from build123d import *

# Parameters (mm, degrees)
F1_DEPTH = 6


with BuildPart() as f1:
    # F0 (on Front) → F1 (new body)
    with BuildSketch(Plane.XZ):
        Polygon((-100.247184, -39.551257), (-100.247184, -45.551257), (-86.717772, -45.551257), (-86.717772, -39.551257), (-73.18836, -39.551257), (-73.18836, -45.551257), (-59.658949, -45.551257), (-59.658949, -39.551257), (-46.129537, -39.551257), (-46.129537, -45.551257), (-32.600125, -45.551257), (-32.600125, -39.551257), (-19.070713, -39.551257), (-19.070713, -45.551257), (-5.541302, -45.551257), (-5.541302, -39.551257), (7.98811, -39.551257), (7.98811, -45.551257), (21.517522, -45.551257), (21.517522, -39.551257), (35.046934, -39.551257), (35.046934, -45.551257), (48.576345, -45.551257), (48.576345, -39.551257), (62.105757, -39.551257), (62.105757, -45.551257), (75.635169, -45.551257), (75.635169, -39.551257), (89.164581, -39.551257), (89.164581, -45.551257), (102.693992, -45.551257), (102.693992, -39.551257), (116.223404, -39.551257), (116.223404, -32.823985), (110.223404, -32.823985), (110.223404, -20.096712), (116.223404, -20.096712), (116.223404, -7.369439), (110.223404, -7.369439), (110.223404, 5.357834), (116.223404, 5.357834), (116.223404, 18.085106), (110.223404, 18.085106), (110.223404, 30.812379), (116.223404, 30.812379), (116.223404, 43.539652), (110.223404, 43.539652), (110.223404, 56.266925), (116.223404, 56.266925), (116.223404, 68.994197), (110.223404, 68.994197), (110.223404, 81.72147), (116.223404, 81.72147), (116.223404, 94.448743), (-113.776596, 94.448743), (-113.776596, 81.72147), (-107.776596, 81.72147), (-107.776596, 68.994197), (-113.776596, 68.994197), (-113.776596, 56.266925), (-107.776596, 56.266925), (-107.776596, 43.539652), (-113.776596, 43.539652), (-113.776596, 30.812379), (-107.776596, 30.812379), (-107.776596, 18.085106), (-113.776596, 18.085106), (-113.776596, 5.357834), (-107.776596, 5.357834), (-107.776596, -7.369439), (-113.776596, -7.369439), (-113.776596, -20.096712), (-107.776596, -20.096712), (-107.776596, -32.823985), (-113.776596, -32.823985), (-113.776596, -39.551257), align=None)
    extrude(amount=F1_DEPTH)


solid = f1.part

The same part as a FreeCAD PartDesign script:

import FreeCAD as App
import Part
import Sketcher
from FreeCAD import Vector
Q = App.Units.Quantity

doc = App.newDocument("Part")
body = doc.addObject("PartDesign::Body", "Body")

sketch1 = body.newObject("Sketcher::SketchObject", "Sketch")
sketch1.AttachmentSupport = (doc.getObject("XZ_Plane"), [""])
sketch1.MapMode = "FlatFace"
sketch1.addGeometry(Part.LineSegment(Vector(-100, -40, 0), Vector(-100, -46, 0)), False)
sketch1.addGeometry(Part.LineSegment(Vector(-100, -46, 0), Vector(-87, -46, 0)), False)
sketch1.addGeometry(Part.LineSegment(Vector(-87, -46, 0), Vector(-87, -40, 0)), False)
sketch1.addGeometry(Part.LineSegment(Vector(-87, -40, 0), Vector(-73, -40, 0)), False)
sketch1.addGeometry(Part.LineSegment(Vector(-73, -40, 0), Vector(-73, -46, 0)), False)
sketch1.addGeometry(Part.LineSegment(Vector(-73, -46, 0), Vector(-60, -46, 0)), False)
sketch1.addGeometry(Part.LineSegment(Vector(-60, -46, 0), Vector(-60, -40, 0)), False)
sketch1.addGeometry(Part.LineSegment(Vector(-60, -40, 0), Vector(-46, -40, 0)), False)
sketch1.addGeometry(Part.LineSegment(Vector(-46, -40, 0), Vector(-46, -46, 0)), False)
sketch1.addGeometry(Part.LineSegment(Vector(-46, -46, 0), Vector(-33, -46, 0)), False)
sketch1.addGeometry(Part.LineSegment(Vector(-33, -46, 0), Vector(-33, -40, 0)), False)
sketch1.addGeometry(Part.LineSegment(Vector(-33, -40, 0), Vector(-19, -40, 0)), False)
sketch1.addGeometry(Part.LineSegment(Vector(-19, -40, 0), Vector(-19, -46, 0)), False)
sketch1.addGeometry(Part.LineSegment(Vector(-19, -46, 0), Vector(-6, -46, 0)), False)
sketch1.addGeometry(Part.LineSegment(Vector(-6, -46, 0), Vector(-6, -40, 0)), False)
sketch1.addGeometry(Part.LineSegment(Vector(-6, -40, 0), Vector(8, -40, 0)), False)
sketch1.addGeometry(Part.LineSegment(Vector(8, -40, 0), Vector(8, -46, 0)), False)
sketch1.addGeometry(Part.LineSegment(Vector(8, -46, 0), Vector(22, -46, 0)), False)
sketch1.addGeometry(Part.LineSegment(Vector(22, -46, 0), Vector(22, -40, 0)), False)
sketch1.addGeometry(Part.LineSegment(Vector(22, -40, 0), Vector(35, -40, 0)), False)
sketch1.addGeometry(Part.LineSegment(Vector(35, -40, 0), Vector(35, -46, 0)), False)
sketch1.addGeometry(Part.LineSegment(Vector(35, -46, 0), Vector(49, -46, 0)), False)
sketch1.addGeometry(Part.LineSegment(Vector(49, -46, 0), Vector(49, -40, 0)), False)
sketch1.addGeometry(Part.LineSegment(Vector(49, -40, 0), Vector(62, -40, 0)), False)
sketch1.addGeometry(Part.LineSegment(Vector(62, -40, 0), Vector(62, -46, 0)), False)
sketch1.addGeometry(Part.LineSegment(Vector(62, -46, 0), Vector(76, -46, 0)), False)
sketch1.addGeometry(Part.LineSegment(Vector(76, -46, 0), Vector(76, -40, 0)), False)
sketch1.addGeometry(Part.LineSegment(Vector(76, -40, 0), Vector(89, -40, 0)), False)
sketch1.addGeometry(Part.LineSegment(Vector(89, -40, 0), Vector(89, -46, 0)), False)
sketch1.addGeometry(Part.LineSegment(Vector(89, -46, 0), Vector(103, -46, 0)), False)
sketch1.addGeometry(Part.LineSegment(Vector(103, -46, 0), Vector(103, -40, 0)), False)
sketch1.addGeometry(Part.LineSegment(Vector(103, -40, 0), Vector(116, -40, 0)), False)
sketch1.addGeometry(Part.LineSegment(Vector(116, -40, 0), Vector(116, -33, 0)), False)
sketch1.addGeometry(Part.LineSegment(Vector(116, -33, 0), Vector(110, -33, 0)), False)
sketch1.addGeometry(Part.LineSegment(Vector(110, -33, 0), Vector(110, -20, 0)), False)
sketch1.addGeometry(Part.LineSegment(Vector(110, -20, 0), Vector(116, -20, 0)), False)
sketch1.addGeometry(Part.LineSegment(Vector(116, -20, 0), Vector(116, -7, 0)), False)
sketch1.addGeometry(Part.LineSegment(Vector(116, -7, 0), Vector(110, -7, 0)), False)
sketch1.addGeometry(Part.LineSegment(Vector(110, -7, 0), Vector(110, 5, 0)), False)
sketch1.addGeometry(Part.LineSegment(Vector(110, 5, 0), Vector(116, 5, 0)), False)
sketch1.addGeometry(Part.LineSegment(Vector(116, 5, 0), Vector(116, 18, 0)), False)
sketch1.addGeometry(Part.LineSegment(Vector(116, 18, 0), Vector(110, 18, 0)), False)
sketch1.addGeometry(Part.LineSegment(Vector(110, 18, 0), Vector(110, 31, 0)), False)
sketch1.addGeometry(Part.LineSegment(Vector(110, 31, 0), Vector(116, 31, 0)), False)
sketch1.addGeometry(Part.LineSegment(Vector(116, 31, 0), Vector(116, 44, 0)), False)
sketch1.addGeometry(Part.LineSegment(Vector(116, 44, 0), Vector(110, 44, 0)), False)
sketch1.addGeometry(Part.LineSegment(Vector(110, 44, 0), Vector(110, 56, 0)), False)
sketch1.addGeometry(Part.LineSegment(Vector(110, 56, 0), Vector(116, 56, 0)), False)
sketch1.addGeometry(Part.LineSegment(Vector(116, 56, 0), Vector(116, 69, 0)), False)
sketch1.addGeometry(Part.LineSegment(Vector(116, 69, 0), Vector(110, 69, 0)), False)
sketch1.addGeometry(Part.LineSegment(Vector(110, 69, 0), Vector(110, 82, 0)), False)
sketch1.addGeometry(Part.LineSegment(Vector(110, 82, 0), Vector(116, 82, 0)), False)
sketch1.addGeometry(Part.LineSegment(Vector(116, 82, 0), Vector(116, 94, 0)), False)
sketch1.addGeometry(Part.LineSegment(Vector(116, 94, 0), Vector(-114, 94, 0)), False)
sketch1.addGeometry(Part.LineSegment(Vector(-114, 94, 0), Vector(-114, 82, 0)), False)
sketch1.addGeometry(Part.LineSegment(Vector(-114, 82, 0), Vector(-108, 82, 0)), False)
sketch1.addGeometry(Part.LineSegment(Vector(-108, 82, 0), Vector(-108, 69, 0)), False)
sketch1.addGeometry(Part.LineSegment(Vector(-108, 69, 0), Vector(-114, 69, 0)), False)
sketch1.addGeometry(Part.LineSegment(Vector(-114, 69, 0), Vector(-114, 56, 0)), False)
sketch1.addGeometry(Part.LineSegment(Vector(-114, 56, 0), Vector(-108, 56, 0)), False)
sketch1.addGeometry(Part.LineSegment(Vector(-108, 56, 0), Vector(-108, 44, 0)), False)
sketch1.addGeometry(Part.LineSegment(Vector(-108, 44, 0), Vector(-114, 44, 0)), False)
sketch1.addGeometry(Part.LineSegment(Vector(-114, 44, 0), Vector(-114, 31, 0)), False)
sketch1.addGeometry(Part.LineSegment(Vector(-114, 31, 0), Vector(-108, 31, 0)), False)
sketch1.addGeometry(Part.LineSegment(Vector(-108, 31, 0), Vector(-108, 18, 0)), False)
sketch1.addGeometry(Part.LineSegment(Vector(-108, 18, 0), Vector(-114, 18, 0)), False)
sketch1.addGeometry(Part.LineSegment(Vector(-114, 18, 0), Vector(-114, 5, 0)), False)
sketch1.addGeometry(Part.LineSegment(Vector(-114, 5, 0), Vector(-108, 5, 0)), False)
sketch1.addGeometry(Part.LineSegment(Vector(-108, 5, 0), Vector(-108, -7, 0)), False)
sketch1.addGeometry(Part.LineSegment(Vector(-108, -7, 0), Vector(-114, -7, 0)), False)
sketch1.addGeometry(Part.LineSegment(Vector(-114, -7, 0), Vector(-114, -20, 0)), False)
sketch1.addGeometry(Part.LineSegment(Vector(-114, -20, 0), Vector(-108, -20, 0)), False)
sketch1.addGeometry(Part.LineSegment(Vector(-108, -20, 0), Vector(-108, -33, 0)), False)
sketch1.addGeometry(Part.LineSegment(Vector(-108, -33, 0), Vector(-114, -33, 0)), False)
sketch1.addGeometry(Part.LineSegment(Vector(-114, -33, 0), Vector(-114, -40, 0)), False)
sketch1.addGeometry(Part.LineSegment(Vector(-114, -40, 0), Vector(-100, -40, 0)), False)
sketch1.addConstraint(Sketcher.Constraint("Coincident", 0, 2, 1, 1))
sketch1.addConstraint(Sketcher.Constraint("Coincident", 1, 2, 2, 1))
sketch1.addConstraint(Sketcher.Constraint("Coincident", 2, 2, 3, 1))
sketch1.addConstraint(Sketcher.Constraint("Coincident", 3, 2, 4, 1))
sketch1.addConstraint(Sketcher.Constraint("Coincident", 4, 2, 5, 1))
sketch1.addConstraint(Sketcher.Constraint("Coincident", 5, 2, 6, 1))
sketch1.addConstraint(Sketcher.Constraint("Coincident", 6, 2, 7, 1))
sketch1.addConstraint(Sketcher.Constraint("Coincident", 7, 2, 8, 1))
sketch1.addConstraint(Sketcher.Constraint("Coincident", 8, 2, 9, 1))
sketch1.addConstraint(Sketcher.Constraint("Coincident", 9, 2, 10, 1))
sketch1.addConstraint(Sketcher.Constraint("Coincident", 10, 2, 11, 1))
sketch1.addConstraint(Sketcher.Constraint("Coincident", 11, 2, 12, 1))
sketch1.addConstraint(Sketcher.Constraint("Coincident", 12, 2, 13, 1))
sketch1.addConstraint(Sketcher.Constraint("Coincident", 13, 2, 14, 1))
sketch1.addConstraint(Sketcher.Constraint("Coincident", 14, 2, 15, 1))
sketch1.addConstraint(Sketcher.Constraint("Coincident", 15, 2, 16, 1))
sketch1.addConstraint(Sketcher.Constraint("Coincident", 16, 2, 17, 1))
sketch1.addConstraint(Sketcher.Constraint("Coincident", 17, 2, 18, 1))
sketch1.addConstraint(Sketcher.Constraint("Coincident", 18, 2, 19, 1))
sketch1.addConstraint(Sketcher.Constraint("Coincident", 19, 2, 20, 1))
sketch1.addConstraint(Sketcher.Constraint("Coincident", 20, 2, 21, 1))
sketch1.addConstraint(Sketcher.Constraint("Coincident", 21, 2, 22, 1))
sketch1.addConstraint(Sketcher.Constraint("Coincident", 22, 2, 23, 1))
sketch1.addConstraint(Sketcher.Constraint("Coincident", 23, 2, 24, 1))
sketch1.addConstraint(Sketcher.Constraint("Coincident", 24, 2, 25, 1))
sketch1.addConstraint(Sketcher.Constraint("Coincident", 25, 2, 26, 1))
sketch1.addConstraint(Sketcher.Constraint("Coincident", 26, 2, 27, 1))
sketch1.addConstraint(Sketcher.Constraint("Coincident", 27, 2, 28, 1))
sketch1.addConstraint(Sketcher.Constraint("Coincident", 28, 2, 29, 1))
sketch1.addConstraint(Sketcher.Constraint("Coincident", 29, 2, 30, 1))
sketch1.addConstraint(Sketcher.Constraint("Coincident", 30, 2, 31, 1))
sketch1.addConstraint(Sketcher.Constraint("Coincident", 31, 2, 32, 1))
sketch1.addConstraint(Sketcher.Constraint("Coincident", 32, 2, 33, 1))
sketch1.addConstraint(Sketcher.Constraint("Coincident", 33, 2, 34, 1))
sketch1.addConstraint(Sketcher.Constraint("Coincident", 34, 2, 35, 1))
sketch1.addConstraint(Sketcher.Constraint("Coincident", 35, 2, 36, 1))
sketch1.addConstraint(Sketcher.Constraint("Coincident", 36, 2, 37, 1))
sketch1.addConstraint(Sketcher.Constraint("Coincident", 37, 2, 38, 1))
sketch1.addConstraint(Sketcher.Constraint("Coincident", 38, 2, 39, 1))
sketch1.addConstraint(Sketcher.Constraint("Coincident", 39, 2, 40, 1))
sketch1.addConstraint(Sketcher.Constraint("Coincident", 40, 2, 41, 1))
sketch1.addConstraint(Sketcher.Constraint("Coincident", 41, 2, 42, 1))
sketch1.addConstraint(Sketcher.Constraint("Coincident", 42, 2, 43, 1))
sketch1.addConstraint(Sketcher.Constraint("Coincident", 43, 2, 44, 1))
sketch1.addConstraint(Sketcher.Constraint("Coincident", 44, 2, 45, 1))
sketch1.addConstraint(Sketcher.Constraint("Coincident", 45, 2, 46, 1))
sketch1.addConstraint(Sketcher.Constraint("Coincident", 46, 2, 47, 1))
sketch1.addConstraint(Sketcher.Constraint("Coincident", 47, 2, 48, 1))
sketch1.addConstraint(Sketcher.Constraint("Coincident", 48, 2, 49, 1))
sketch1.addConstraint(Sketcher.Constraint("Coincident", 49, 2, 50, 1))
sketch1.addConstraint(Sketcher.Constraint("Coincident", 50, 2, 51, 1))
sketch1.addConstraint(Sketcher.Constraint("Coincident", 51, 2, 52, 1))
sketch1.addConstraint(Sketcher.Constraint("Coincident", 52, 2, 53, 1))
sketch1.addConstraint(Sketcher.Constraint("Coincident", 53, 2, 54, 1))
sketch1.addConstraint(Sketcher.Constraint("Coincident", 54, 2, 55, 1))
sketch1.addConstraint(Sketcher.Constraint("Coincident", 55, 2, 56, 1))
sketch1.addConstraint(Sketcher.Constraint("Coincident", 56, 2, 57, 1))
sketch1.addConstraint(Sketcher.Constraint("Coincident", 57, 2, 58, 1))
sketch1.addConstraint(Sketcher.Constraint("Coincident", 58, 2, 59, 1))
sketch1.addConstraint(Sketcher.Constraint("Coincident", 59, 2, 60, 1))
sketch1.addConstraint(Sketcher.Constraint("Coincident", 60, 2, 61, 1))
sketch1.addConstraint(Sketcher.Constraint("Coincident", 61, 2, 62, 1))
sketch1.addConstraint(Sketcher.Constraint("Coincident", 62, 2, 63, 1))
sketch1.addConstraint(Sketcher.Constraint("Coincident", 63, 2, 64, 1))
sketch1.addConstraint(Sketcher.Constraint("Coincident", 64, 2, 65, 1))
sketch1.addConstraint(Sketcher.Constraint("Coincident", 65, 2, 66, 1))
sketch1.addConstraint(Sketcher.Constraint("Coincident", 66, 2, 67, 1))
sketch1.addConstraint(Sketcher.Constraint("Coincident", 67, 2, 68, 1))
sketch1.addConstraint(Sketcher.Constraint("Coincident", 68, 2, 69, 1))
sketch1.addConstraint(Sketcher.Constraint("Coincident", 69, 2, 70, 1))
sketch1.addConstraint(Sketcher.Constraint("Coincident", 70, 2, 71, 1))
sketch1.addConstraint(Sketcher.Constraint("Coincident", 71, 2, 72, 1))
sketch1.addConstraint(Sketcher.Constraint("Coincident", 72, 2, 73, 1))
sketch1.addConstraint(Sketcher.Constraint("Coincident", 73, 2, 74, 1))
sketch1.addConstraint(Sketcher.Constraint("Coincident", 74, 2, 75, 1))
sketch1.addConstraint(Sketcher.Constraint("Coincident", 75, 2, 0, 1))
sketch1.addConstraint(Sketcher.Constraint("Vertical", 0))
sketch1.addConstraint(Sketcher.Constraint("Horizontal", 1))
sketch1.addConstraint(Sketcher.Constraint("Vertical", 2))
sketch1.addConstraint(Sketcher.Constraint("Horizontal", 3))
sketch1.addConstraint(Sketcher.Constraint("Vertical", 4))
sketch1.addConstraint(Sketcher.Constraint("Horizontal", 5))
sketch1.addConstraint(Sketcher.Constraint("Vertical", 6))
sketch1.addConstraint(Sketcher.Constraint("Horizontal", 7))
sketch1.addConstraint(Sketcher.Constraint("Vertical", 8))
sketch1.addConstraint(Sketcher.Constraint("Horizontal", 9))
sketch1.addConstraint(Sketcher.Constraint("Vertical", 10))
sketch1.addConstraint(Sketcher.Constraint("Horizontal", 11))
sketch1.addConstraint(Sketcher.Constraint("Vertical", 12))
sketch1.addConstraint(Sketcher.Constraint("Horizontal", 13))
sketch1.addConstraint(Sketcher.Constraint("Vertical", 14))
sketch1.addConstraint(Sketcher.Constraint("Horizontal", 15))
sketch1.addConstraint(Sketcher.Constraint("Vertical", 16))
sketch1.addConstraint(Sketcher.Constraint("Horizontal", 17))
sketch1.addConstraint(Sketcher.Constraint("Vertical", 18))
sketch1.addConstraint(Sketcher.Constraint("Horizontal", 19))
sketch1.addConstraint(Sketcher.Constraint("Vertical", 20))
sketch1.addConstraint(Sketcher.Constraint("Horizontal", 21))
sketch1.addConstraint(Sketcher.Constraint("Vertical", 22))
sketch1.addConstraint(Sketcher.Constraint("Horizontal", 23))
sketch1.addConstraint(Sketcher.Constraint("Vertical", 24))
sketch1.addConstraint(Sketcher.Constraint("Horizontal", 25))
sketch1.addConstraint(Sketcher.Constraint("Vertical", 26))
sketch1.addConstraint(Sketcher.Constraint("Horizontal", 27))
sketch1.addConstraint(Sketcher.Constraint("Vertical", 28))
sketch1.addConstraint(Sketcher.Constraint("Horizontal", 29))
sketch1.addConstraint(Sketcher.Constraint("Vertical", 30))
sketch1.addConstraint(Sketcher.Constraint("Horizontal", 31))
sketch1.addConstraint(Sketcher.Constraint("Vertical", 32))
sketch1.addConstraint(Sketcher.Constraint("Horizontal", 33))
sketch1.addConstraint(Sketcher.Constraint("Vertical", 34))
sketch1.addConstraint(Sketcher.Constraint("Horizontal", 35))
sketch1.addConstraint(Sketcher.Constraint("Vertical", 36))
sketch1.addConstraint(Sketcher.Constraint("Horizontal", 37))
sketch1.addConstraint(Sketcher.Constraint("Vertical", 38))
sketch1.addConstraint(Sketcher.Constraint("Horizontal", 39))
sketch1.addConstraint(Sketcher.Constraint("Vertical", 40))
sketch1.addConstraint(Sketcher.Constraint("Horizontal", 41))
sketch1.addConstraint(Sketcher.Constraint("Vertical", 42))
sketch1.addConstraint(Sketcher.Constraint("Horizontal", 43))
sketch1.addConstraint(Sketcher.Constraint("Vertical", 44))
sketch1.addConstraint(Sketcher.Constraint("Horizontal", 45))
sketch1.addConstraint(Sketcher.Constraint("Vertical", 46))
sketch1.addConstraint(Sketcher.Constraint("Horizontal", 47))
sketch1.addConstraint(Sketcher.Constraint("Vertical", 48))
sketch1.addConstraint(Sketcher.Constraint("Horizontal", 49))
sketch1.addConstraint(Sketcher.Constraint("Vertical", 50))
sketch1.addConstraint(Sketcher.Constraint("Horizontal", 51))
sketch1.addConstraint(Sketcher.Constraint("Vertical", 52))
sketch1.addConstraint(Sketcher.Constraint("Horizontal", 53))
sketch1.addConstraint(Sketcher.Constraint("Vertical", 54))
sketch1.addConstraint(Sketcher.Constraint("Horizontal", 55))
sketch1.addConstraint(Sketcher.Constraint("Vertical", 56))
sketch1.addConstraint(Sketcher.Constraint("Horizontal", 57))
sketch1.addConstraint(Sketcher.Constraint("Vertical", 58))
sketch1.addConstraint(Sketcher.Constraint("Horizontal", 59))
sketch1.addConstraint(Sketcher.Constraint("Vertical", 60))
sketch1.addConstraint(Sketcher.Constraint("Horizontal", 61))
sketch1.addConstraint(Sketcher.Constraint("Vertical", 62))
sketch1.addConstraint(Sketcher.Constraint("Horizontal", 63))
sketch1.addConstraint(Sketcher.Constraint("Vertical", 64))
sketch1.addConstraint(Sketcher.Constraint("Horizontal", 65))
sketch1.addConstraint(Sketcher.Constraint("Vertical", 66))
sketch1.addConstraint(Sketcher.Constraint("Horizontal", 67))
sketch1.addConstraint(Sketcher.Constraint("Vertical", 68))
sketch1.addConstraint(Sketcher.Constraint("Horizontal", 69))
sketch1.addConstraint(Sketcher.Constraint("Vertical", 70))
sketch1.addConstraint(Sketcher.Constraint("Horizontal", 71))
sketch1.addConstraint(Sketcher.Constraint("Vertical", 72))
sketch1.addConstraint(Sketcher.Constraint("Horizontal", 73))
sketch1.addConstraint(Sketcher.Constraint("Vertical", 74))
sketch1.addConstraint(Sketcher.Constraint("Horizontal", 75))
sketch1.addConstraint(Sketcher.Constraint("Horizontal", 1, 2, 4, 2))
sketch1.addConstraint(Sketcher.Constraint("Horizontal", 3, 2, 6, 2))
sketch1.addConstraint(Sketcher.Constraint("Horizontal", 5, 2, 8, 2))
sketch1.addConstraint(Sketcher.Constraint("Horizontal", 7, 2, 10, 2))
sketch1.addConstraint(Sketcher.Constraint("Horizontal", 9, 2, 12, 2))
sketch1.addConstraint(Sketcher.Constraint("Horizontal", 11, 2, 14, 2))
sketch1.addConstraint(Sketcher.Constraint("Horizontal", 13, 2, 16, 2))
sketch1.addConstraint(Sketcher.Constraint("Horizontal", 15, 2, 18, 2))
sketch1.addConstraint(Sketcher.Constraint("Horizontal", 17, 2, 20, 2))
sketch1.addConstraint(Sketcher.Constraint("Horizontal", 19, 2, 22, 2))
sketch1.addConstraint(Sketcher.Constraint("Horizontal", 21, 2, 24, 2))
sketch1.addConstraint(Sketcher.Constraint("Horizontal", 23, 2, 26, 2))
sketch1.addConstraint(Sketcher.Constraint("Horizontal", 25, 2, 28, 2))
sketch1.addConstraint(Sketcher.Constraint("Horizontal", 27, 2, 30, 2))
sketch1.addConstraint(Sketcher.Constraint("Horizontal", 51, 2, 54, 2))
sketch1.addConstraint(Sketcher.Constraint("Horizontal", 49, 2, 56, 2))
sketch1.addConstraint(Sketcher.Constraint("Horizontal", 47, 2, 58, 2))
sketch1.addConstraint(Sketcher.Constraint("Horizontal", 45, 2, 60, 2))
sketch1.addConstraint(Sketcher.Constraint("Horizontal", 43, 2, 62, 2))
sketch1.addConstraint(Sketcher.Constraint("Horizontal", 41, 2, 64, 2))
sketch1.addConstraint(Sketcher.Constraint("Horizontal", 39, 2, 66, 2))
sketch1.addConstraint(Sketcher.Constraint("Horizontal", 37, 2, 68, 2))
sketch1.addConstraint(Sketcher.Constraint("Horizontal", 35, 2, 70, 2))
sketch1.addConstraint(Sketcher.Constraint("Horizontal", 33, 2, 72, 2))
sketch1.addConstraint(Sketcher.Constraint("Horizontal", 31, 2, 74, 2))
sketch1.addConstraint(Sketcher.Constraint("Vertical", 32, 2, 35, 2))
sketch1.addConstraint(Sketcher.Constraint("Vertical", 34, 2, 37, 2))
sketch1.addConstraint(Sketcher.Constraint("Vertical", 36, 2, 39, 2))
sketch1.addConstraint(Sketcher.Constraint("Vertical", 38, 2, 41, 2))
sketch1.addConstraint(Sketcher.Constraint("Vertical", 40, 2, 43, 2))
sketch1.addConstraint(Sketcher.Constraint("Vertical", 42, 2, 45, 2))
sketch1.addConstraint(Sketcher.Constraint("Vertical", 44, 2, 47, 2))
sketch1.addConstraint(Sketcher.Constraint("Vertical", 46, 2, 49, 2))
sketch1.addConstraint(Sketcher.Constraint("Vertical", 48, 2, 51, 2))
sketch1.addConstraint(Sketcher.Constraint("Vertical", 54, 2, 57, 2))
sketch1.addConstraint(Sketcher.Constraint("Vertical", 56, 2, 59, 2))
sketch1.addConstraint(Sketcher.Constraint("Vertical", 58, 2, 61, 2))
sketch1.addConstraint(Sketcher.Constraint("Vertical", 60, 2, 63, 2))
sketch1.addConstraint(Sketcher.Constraint("Vertical", 62, 2, 65, 2))
sketch1.addConstraint(Sketcher.Constraint("Vertical", 64, 2, 67, 2))
sketch1.addConstraint(Sketcher.Constraint("Vertical", 66, 2, 69, 2))
sketch1.addConstraint(Sketcher.Constraint("Vertical", 68, 2, 71, 2))
sketch1.addConstraint(Sketcher.Constraint("Vertical", 70, 2, 73, 2))
sketch1.addConstraint(Sketcher.Constraint("Equal", 1, 3))
sketch1.addConstraint(Sketcher.Constraint("Equal", 3, 5))
sketch1.addConstraint(Sketcher.Constraint("Equal", 5, 7))
sketch1.addConstraint(Sketcher.Constraint("Equal", 7, 9))
sketch1.addConstraint(Sketcher.Constraint("Equal", 9, 11))
sketch1.addConstraint(Sketcher.Constraint("Equal", 11, 13))
sketch1.addConstraint(Sketcher.Constraint("Equal", 13, 15))
sketch1.addConstraint(Sketcher.Constraint("Equal", 15, 17))
sketch1.addConstraint(Sketcher.Constraint("Equal", 17, 19))
sketch1.addConstraint(Sketcher.Constraint("Equal", 19, 21))
sketch1.addConstraint(Sketcher.Constraint("Equal", 21, 23))
sketch1.addConstraint(Sketcher.Constraint("Equal", 23, 25))
sketch1.addConstraint(Sketcher.Constraint("Equal", 25, 27))
sketch1.addConstraint(Sketcher.Constraint("Equal", 27, 29))
sketch1.addConstraint(Sketcher.Constraint("Equal", 29, 31))
sketch1.addConstraint(Sketcher.Constraint("Equal", 51, 55))
sketch1.addConstraint(Sketcher.Constraint("Equal", 31, 75))
sketch1.addConstraint(Sketcher.Constraint("Equal", 73, 0))
sketch1.addConstraint(Sketcher.Constraint("Equal", 34, 36))
sketch1.addConstraint(Sketcher.Constraint("Equal", 36, 38))
sketch1.addConstraint(Sketcher.Constraint("Equal", 38, 40))
sketch1.addConstraint(Sketcher.Constraint("Equal", 40, 42))
sketch1.addConstraint(Sketcher.Constraint("Equal", 42, 44))
sketch1.addConstraint(Sketcher.Constraint("Equal", 44, 46))
sketch1.addConstraint(Sketcher.Constraint("Equal", 46, 48))
sketch1.addConstraint(Sketcher.Constraint("Equal", 48, 50))
sketch1.addConstraint(Sketcher.Constraint("Equal", 50, 52))
sketch1.addConstraint(Sketcher.Constraint("DistanceX", 33, 2, 33, 1, Q("6 mm")))
sketch1.addConstraint(Sketcher.Constraint("DistanceX", 53, 2, 53, 1, Q("230 mm")))
sketch1.addConstraint(Sketcher.Constraint("DistanceY", 32, 1, 32, 2, Q("6.727272 mm")))
sketch1.addConstraint(Sketcher.Constraint("DistanceY", 40, 1, 40, 2, Q("12.727272 mm")))
sketch1.addConstraint(Sketcher.Constraint("DistanceX", 1, 2, -1, 1, Q("86.717772 mm")))
sketch1.addConstraint(Sketcher.Constraint("DistanceY", 34, 2, -1, 1, Q("20.096712 mm")))
pad1 = body.newObject("PartDesign::Pad", "Pad")
pad1.Profile = sketch1
pad1.Length = 6

doc.recompute()
